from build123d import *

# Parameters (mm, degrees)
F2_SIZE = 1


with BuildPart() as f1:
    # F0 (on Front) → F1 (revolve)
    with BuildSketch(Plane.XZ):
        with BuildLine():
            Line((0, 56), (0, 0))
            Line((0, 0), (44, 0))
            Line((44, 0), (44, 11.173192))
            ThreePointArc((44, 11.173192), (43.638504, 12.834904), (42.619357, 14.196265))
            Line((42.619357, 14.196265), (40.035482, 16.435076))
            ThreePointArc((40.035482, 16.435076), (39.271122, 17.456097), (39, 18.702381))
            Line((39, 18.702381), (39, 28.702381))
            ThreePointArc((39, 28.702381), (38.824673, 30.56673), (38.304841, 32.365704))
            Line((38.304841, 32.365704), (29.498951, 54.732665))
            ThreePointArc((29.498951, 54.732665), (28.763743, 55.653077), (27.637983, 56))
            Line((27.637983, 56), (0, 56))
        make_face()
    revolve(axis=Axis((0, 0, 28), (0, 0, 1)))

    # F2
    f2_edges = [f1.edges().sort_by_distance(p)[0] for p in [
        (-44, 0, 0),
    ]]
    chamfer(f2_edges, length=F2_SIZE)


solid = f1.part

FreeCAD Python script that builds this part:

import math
import FreeCAD as App
import Part
import Sketcher

V = App.Vector


def edges_at(feature, points):
    """Names of the edges that pass closest to the given points."""
    edges = feature.Shape.Edges
    near = lambda p: min(range(len(edges)), key=lambda i: edges[i].distToShape(Part.Vertex(*p))[0])
    return sorted({f"Edge{near(p) + 1}" for p in points})

doc = App.newDocument("Part")
params = doc.addObject("Spreadsheet::Sheet", "Params")
for row, (alias, value) in enumerate([
    ("sketch1_radius", "2.000001 mm"),
    ("sketch1_width", "44 mm"),
    ("sketch1_height", "56 mm"),
    ("sketch1_height2", "10 mm"),
    ("revolution_angle", "360 deg"),
    ("chamfer_size", "1 mm"),
], start=1):
    params.set(f"A{row}", alias)
    params.set(f"B{row}", "=" + value)
    params.setAlias(f"B{row}", alias)

body = doc.addObject("PartDesign::Body", "Body")

# Sketch on XZ plane
sketch1 = body.newObject("Sketcher::SketchObject", "Sketch")
sketch1.AttachmentSupport = (doc.getObject("XZ_Plane"), [""])
sketch1.MapMode = "FlatFace"
sketch1.addGeometry([
    Part.LineSegment(V(0, 56, 0), V(0, 0, 0)),  # 0
    Part.LineSegment(V(0, 0, 0), V(44, 0, 0)),  # 1
    Part.LineSegment(V(44, 0, 0), V(44, 11.2, 0)),  # 2
    Part.ArcOfCircle(Part.Circle(V(40, 11.2, 0), V(0, 0, 1), 4), math.radians(0), math.radians(49)),  # 3
    Part.LineSegment(V(42.6, 14.2, 0), V(40, 16.4, 0)),  # 4
    Part.ArcOfCircle(Part.Circle(V(42, 18.7, 0), V(0, 0, 1), 3), math.radians(-180), math.radians(-131)),  # 5
    Part.LineSegment(V(39, 18.7, 0), V(39, 28.7, 0)),  # 6
    Part.ArcOfCircle(Part.Circle(V(29, 28.7, 0), V(0, 0, 1), 10), math.radians(0), math.radians(21)),  # 7
    Part.LineSegment(V(38.3, 32.4, 0), V(29.5, 54.7, 0)),  # 8
    Part.ArcOfCircle(Part.Circle(V(27.6, 54, 0), V(0, 0, 1), 2), math.radians(21), math.radians(90)),  # 9
    Part.LineSegment(V(27.6, 56, 0), V(0, 56, 0)),  # 10
], False)
sketch1.addConstraint([
    Sketcher.Constraint("Coincident", 0, 2, 1, 1),
    Sketcher.Constraint("Coincident", 1, 2, 2, 1),
    Sketcher.Constraint("Tangent", 2, 2, 3, 1),
    Sketcher.Constraint("Tangent", 3, 2, 4, 1),
    Sketcher.Constraint("Tangent", 4, 2, 5, 2),
    Sketcher.Constraint("Tangent", 5, 1, 6, 1),
    Sketcher.Constraint("Tangent", 6, 2, 7, 1),
    Sketcher.Constraint("Tangent", 7, 2, 8, 1),
    Sketcher.Constraint("Tangent", 8, 2, 9, 1),
    Sketcher.Constraint("Tangent", 9, 2, 10, 1),
    Sketcher.Constraint("Coincident", 10, 2, 0, 1),
    Sketcher.Constraint("Vertical", 0),
    Sketcher.Constraint("Horizontal", 1),
    Sketcher.Constraint("Vertical", 2),
    Sketcher.Constraint("Vertical", 6),
    Sketcher.Constraint("Horizontal", 10),
    Sketcher.Constraint("Coincident", 0, 2, -1, 1),
    Sketcher.Constraint("Radius", 9, 2.000001),
    Sketcher.Constraint("DistanceX", 1, 1, 1, 2, 44.0),
    Sketcher.Constraint("DistanceY", 0, 2, 0, 1, 56.0),
    Sketcher.Constraint("DistanceY", 6, 1, 6, 2, 10.0),
    Sketcher.Constraint("DistanceX", -1, 1, 5, 1, 39.0),
    Sketcher.Constraint("Radius", 7, 10.000011),
    Sketcher.Constraint("Radius", 3, 4.000003),
    Sketcher.Constraint("Radius", 5, 3.000004),
    Sketcher.Constraint("Distance", 4, 3.418872),
    Sketcher.Constraint("DistanceX", 10, 2, 10, 1, 27.637983),
    Sketcher.Constraint("DistanceY", 2, 1, 2, 2, 11.173192),
])
sketch1.setExpression("Constraints[17]", "Params.sketch1_radius")
sketch1.setExpression("Constraints[18]", "Params.sketch1_width")
sketch1.setExpression("Constraints[19]", "Params.sketch1_height")
sketch1.setExpression("Constraints[20]", "Params.sketch1_height2")
revolution = body.newObject("PartDesign::Revolution", "Revolution")
revolution.Profile = sketch1
revolution.ReferenceAxis = (sketch1, ["V_Axis"])
revolution.setExpression("Angle", "Params.revolution_angle")
doc.recompute()

chamfer = body.newObject("PartDesign::Chamfer", "Chamfer")
chamfer.Base = (revolution, edges_at(revolution, [(-44, 0, 0)]))
chamfer.setExpression("Size", "Params.chamfer_size")

doc.recompute()
